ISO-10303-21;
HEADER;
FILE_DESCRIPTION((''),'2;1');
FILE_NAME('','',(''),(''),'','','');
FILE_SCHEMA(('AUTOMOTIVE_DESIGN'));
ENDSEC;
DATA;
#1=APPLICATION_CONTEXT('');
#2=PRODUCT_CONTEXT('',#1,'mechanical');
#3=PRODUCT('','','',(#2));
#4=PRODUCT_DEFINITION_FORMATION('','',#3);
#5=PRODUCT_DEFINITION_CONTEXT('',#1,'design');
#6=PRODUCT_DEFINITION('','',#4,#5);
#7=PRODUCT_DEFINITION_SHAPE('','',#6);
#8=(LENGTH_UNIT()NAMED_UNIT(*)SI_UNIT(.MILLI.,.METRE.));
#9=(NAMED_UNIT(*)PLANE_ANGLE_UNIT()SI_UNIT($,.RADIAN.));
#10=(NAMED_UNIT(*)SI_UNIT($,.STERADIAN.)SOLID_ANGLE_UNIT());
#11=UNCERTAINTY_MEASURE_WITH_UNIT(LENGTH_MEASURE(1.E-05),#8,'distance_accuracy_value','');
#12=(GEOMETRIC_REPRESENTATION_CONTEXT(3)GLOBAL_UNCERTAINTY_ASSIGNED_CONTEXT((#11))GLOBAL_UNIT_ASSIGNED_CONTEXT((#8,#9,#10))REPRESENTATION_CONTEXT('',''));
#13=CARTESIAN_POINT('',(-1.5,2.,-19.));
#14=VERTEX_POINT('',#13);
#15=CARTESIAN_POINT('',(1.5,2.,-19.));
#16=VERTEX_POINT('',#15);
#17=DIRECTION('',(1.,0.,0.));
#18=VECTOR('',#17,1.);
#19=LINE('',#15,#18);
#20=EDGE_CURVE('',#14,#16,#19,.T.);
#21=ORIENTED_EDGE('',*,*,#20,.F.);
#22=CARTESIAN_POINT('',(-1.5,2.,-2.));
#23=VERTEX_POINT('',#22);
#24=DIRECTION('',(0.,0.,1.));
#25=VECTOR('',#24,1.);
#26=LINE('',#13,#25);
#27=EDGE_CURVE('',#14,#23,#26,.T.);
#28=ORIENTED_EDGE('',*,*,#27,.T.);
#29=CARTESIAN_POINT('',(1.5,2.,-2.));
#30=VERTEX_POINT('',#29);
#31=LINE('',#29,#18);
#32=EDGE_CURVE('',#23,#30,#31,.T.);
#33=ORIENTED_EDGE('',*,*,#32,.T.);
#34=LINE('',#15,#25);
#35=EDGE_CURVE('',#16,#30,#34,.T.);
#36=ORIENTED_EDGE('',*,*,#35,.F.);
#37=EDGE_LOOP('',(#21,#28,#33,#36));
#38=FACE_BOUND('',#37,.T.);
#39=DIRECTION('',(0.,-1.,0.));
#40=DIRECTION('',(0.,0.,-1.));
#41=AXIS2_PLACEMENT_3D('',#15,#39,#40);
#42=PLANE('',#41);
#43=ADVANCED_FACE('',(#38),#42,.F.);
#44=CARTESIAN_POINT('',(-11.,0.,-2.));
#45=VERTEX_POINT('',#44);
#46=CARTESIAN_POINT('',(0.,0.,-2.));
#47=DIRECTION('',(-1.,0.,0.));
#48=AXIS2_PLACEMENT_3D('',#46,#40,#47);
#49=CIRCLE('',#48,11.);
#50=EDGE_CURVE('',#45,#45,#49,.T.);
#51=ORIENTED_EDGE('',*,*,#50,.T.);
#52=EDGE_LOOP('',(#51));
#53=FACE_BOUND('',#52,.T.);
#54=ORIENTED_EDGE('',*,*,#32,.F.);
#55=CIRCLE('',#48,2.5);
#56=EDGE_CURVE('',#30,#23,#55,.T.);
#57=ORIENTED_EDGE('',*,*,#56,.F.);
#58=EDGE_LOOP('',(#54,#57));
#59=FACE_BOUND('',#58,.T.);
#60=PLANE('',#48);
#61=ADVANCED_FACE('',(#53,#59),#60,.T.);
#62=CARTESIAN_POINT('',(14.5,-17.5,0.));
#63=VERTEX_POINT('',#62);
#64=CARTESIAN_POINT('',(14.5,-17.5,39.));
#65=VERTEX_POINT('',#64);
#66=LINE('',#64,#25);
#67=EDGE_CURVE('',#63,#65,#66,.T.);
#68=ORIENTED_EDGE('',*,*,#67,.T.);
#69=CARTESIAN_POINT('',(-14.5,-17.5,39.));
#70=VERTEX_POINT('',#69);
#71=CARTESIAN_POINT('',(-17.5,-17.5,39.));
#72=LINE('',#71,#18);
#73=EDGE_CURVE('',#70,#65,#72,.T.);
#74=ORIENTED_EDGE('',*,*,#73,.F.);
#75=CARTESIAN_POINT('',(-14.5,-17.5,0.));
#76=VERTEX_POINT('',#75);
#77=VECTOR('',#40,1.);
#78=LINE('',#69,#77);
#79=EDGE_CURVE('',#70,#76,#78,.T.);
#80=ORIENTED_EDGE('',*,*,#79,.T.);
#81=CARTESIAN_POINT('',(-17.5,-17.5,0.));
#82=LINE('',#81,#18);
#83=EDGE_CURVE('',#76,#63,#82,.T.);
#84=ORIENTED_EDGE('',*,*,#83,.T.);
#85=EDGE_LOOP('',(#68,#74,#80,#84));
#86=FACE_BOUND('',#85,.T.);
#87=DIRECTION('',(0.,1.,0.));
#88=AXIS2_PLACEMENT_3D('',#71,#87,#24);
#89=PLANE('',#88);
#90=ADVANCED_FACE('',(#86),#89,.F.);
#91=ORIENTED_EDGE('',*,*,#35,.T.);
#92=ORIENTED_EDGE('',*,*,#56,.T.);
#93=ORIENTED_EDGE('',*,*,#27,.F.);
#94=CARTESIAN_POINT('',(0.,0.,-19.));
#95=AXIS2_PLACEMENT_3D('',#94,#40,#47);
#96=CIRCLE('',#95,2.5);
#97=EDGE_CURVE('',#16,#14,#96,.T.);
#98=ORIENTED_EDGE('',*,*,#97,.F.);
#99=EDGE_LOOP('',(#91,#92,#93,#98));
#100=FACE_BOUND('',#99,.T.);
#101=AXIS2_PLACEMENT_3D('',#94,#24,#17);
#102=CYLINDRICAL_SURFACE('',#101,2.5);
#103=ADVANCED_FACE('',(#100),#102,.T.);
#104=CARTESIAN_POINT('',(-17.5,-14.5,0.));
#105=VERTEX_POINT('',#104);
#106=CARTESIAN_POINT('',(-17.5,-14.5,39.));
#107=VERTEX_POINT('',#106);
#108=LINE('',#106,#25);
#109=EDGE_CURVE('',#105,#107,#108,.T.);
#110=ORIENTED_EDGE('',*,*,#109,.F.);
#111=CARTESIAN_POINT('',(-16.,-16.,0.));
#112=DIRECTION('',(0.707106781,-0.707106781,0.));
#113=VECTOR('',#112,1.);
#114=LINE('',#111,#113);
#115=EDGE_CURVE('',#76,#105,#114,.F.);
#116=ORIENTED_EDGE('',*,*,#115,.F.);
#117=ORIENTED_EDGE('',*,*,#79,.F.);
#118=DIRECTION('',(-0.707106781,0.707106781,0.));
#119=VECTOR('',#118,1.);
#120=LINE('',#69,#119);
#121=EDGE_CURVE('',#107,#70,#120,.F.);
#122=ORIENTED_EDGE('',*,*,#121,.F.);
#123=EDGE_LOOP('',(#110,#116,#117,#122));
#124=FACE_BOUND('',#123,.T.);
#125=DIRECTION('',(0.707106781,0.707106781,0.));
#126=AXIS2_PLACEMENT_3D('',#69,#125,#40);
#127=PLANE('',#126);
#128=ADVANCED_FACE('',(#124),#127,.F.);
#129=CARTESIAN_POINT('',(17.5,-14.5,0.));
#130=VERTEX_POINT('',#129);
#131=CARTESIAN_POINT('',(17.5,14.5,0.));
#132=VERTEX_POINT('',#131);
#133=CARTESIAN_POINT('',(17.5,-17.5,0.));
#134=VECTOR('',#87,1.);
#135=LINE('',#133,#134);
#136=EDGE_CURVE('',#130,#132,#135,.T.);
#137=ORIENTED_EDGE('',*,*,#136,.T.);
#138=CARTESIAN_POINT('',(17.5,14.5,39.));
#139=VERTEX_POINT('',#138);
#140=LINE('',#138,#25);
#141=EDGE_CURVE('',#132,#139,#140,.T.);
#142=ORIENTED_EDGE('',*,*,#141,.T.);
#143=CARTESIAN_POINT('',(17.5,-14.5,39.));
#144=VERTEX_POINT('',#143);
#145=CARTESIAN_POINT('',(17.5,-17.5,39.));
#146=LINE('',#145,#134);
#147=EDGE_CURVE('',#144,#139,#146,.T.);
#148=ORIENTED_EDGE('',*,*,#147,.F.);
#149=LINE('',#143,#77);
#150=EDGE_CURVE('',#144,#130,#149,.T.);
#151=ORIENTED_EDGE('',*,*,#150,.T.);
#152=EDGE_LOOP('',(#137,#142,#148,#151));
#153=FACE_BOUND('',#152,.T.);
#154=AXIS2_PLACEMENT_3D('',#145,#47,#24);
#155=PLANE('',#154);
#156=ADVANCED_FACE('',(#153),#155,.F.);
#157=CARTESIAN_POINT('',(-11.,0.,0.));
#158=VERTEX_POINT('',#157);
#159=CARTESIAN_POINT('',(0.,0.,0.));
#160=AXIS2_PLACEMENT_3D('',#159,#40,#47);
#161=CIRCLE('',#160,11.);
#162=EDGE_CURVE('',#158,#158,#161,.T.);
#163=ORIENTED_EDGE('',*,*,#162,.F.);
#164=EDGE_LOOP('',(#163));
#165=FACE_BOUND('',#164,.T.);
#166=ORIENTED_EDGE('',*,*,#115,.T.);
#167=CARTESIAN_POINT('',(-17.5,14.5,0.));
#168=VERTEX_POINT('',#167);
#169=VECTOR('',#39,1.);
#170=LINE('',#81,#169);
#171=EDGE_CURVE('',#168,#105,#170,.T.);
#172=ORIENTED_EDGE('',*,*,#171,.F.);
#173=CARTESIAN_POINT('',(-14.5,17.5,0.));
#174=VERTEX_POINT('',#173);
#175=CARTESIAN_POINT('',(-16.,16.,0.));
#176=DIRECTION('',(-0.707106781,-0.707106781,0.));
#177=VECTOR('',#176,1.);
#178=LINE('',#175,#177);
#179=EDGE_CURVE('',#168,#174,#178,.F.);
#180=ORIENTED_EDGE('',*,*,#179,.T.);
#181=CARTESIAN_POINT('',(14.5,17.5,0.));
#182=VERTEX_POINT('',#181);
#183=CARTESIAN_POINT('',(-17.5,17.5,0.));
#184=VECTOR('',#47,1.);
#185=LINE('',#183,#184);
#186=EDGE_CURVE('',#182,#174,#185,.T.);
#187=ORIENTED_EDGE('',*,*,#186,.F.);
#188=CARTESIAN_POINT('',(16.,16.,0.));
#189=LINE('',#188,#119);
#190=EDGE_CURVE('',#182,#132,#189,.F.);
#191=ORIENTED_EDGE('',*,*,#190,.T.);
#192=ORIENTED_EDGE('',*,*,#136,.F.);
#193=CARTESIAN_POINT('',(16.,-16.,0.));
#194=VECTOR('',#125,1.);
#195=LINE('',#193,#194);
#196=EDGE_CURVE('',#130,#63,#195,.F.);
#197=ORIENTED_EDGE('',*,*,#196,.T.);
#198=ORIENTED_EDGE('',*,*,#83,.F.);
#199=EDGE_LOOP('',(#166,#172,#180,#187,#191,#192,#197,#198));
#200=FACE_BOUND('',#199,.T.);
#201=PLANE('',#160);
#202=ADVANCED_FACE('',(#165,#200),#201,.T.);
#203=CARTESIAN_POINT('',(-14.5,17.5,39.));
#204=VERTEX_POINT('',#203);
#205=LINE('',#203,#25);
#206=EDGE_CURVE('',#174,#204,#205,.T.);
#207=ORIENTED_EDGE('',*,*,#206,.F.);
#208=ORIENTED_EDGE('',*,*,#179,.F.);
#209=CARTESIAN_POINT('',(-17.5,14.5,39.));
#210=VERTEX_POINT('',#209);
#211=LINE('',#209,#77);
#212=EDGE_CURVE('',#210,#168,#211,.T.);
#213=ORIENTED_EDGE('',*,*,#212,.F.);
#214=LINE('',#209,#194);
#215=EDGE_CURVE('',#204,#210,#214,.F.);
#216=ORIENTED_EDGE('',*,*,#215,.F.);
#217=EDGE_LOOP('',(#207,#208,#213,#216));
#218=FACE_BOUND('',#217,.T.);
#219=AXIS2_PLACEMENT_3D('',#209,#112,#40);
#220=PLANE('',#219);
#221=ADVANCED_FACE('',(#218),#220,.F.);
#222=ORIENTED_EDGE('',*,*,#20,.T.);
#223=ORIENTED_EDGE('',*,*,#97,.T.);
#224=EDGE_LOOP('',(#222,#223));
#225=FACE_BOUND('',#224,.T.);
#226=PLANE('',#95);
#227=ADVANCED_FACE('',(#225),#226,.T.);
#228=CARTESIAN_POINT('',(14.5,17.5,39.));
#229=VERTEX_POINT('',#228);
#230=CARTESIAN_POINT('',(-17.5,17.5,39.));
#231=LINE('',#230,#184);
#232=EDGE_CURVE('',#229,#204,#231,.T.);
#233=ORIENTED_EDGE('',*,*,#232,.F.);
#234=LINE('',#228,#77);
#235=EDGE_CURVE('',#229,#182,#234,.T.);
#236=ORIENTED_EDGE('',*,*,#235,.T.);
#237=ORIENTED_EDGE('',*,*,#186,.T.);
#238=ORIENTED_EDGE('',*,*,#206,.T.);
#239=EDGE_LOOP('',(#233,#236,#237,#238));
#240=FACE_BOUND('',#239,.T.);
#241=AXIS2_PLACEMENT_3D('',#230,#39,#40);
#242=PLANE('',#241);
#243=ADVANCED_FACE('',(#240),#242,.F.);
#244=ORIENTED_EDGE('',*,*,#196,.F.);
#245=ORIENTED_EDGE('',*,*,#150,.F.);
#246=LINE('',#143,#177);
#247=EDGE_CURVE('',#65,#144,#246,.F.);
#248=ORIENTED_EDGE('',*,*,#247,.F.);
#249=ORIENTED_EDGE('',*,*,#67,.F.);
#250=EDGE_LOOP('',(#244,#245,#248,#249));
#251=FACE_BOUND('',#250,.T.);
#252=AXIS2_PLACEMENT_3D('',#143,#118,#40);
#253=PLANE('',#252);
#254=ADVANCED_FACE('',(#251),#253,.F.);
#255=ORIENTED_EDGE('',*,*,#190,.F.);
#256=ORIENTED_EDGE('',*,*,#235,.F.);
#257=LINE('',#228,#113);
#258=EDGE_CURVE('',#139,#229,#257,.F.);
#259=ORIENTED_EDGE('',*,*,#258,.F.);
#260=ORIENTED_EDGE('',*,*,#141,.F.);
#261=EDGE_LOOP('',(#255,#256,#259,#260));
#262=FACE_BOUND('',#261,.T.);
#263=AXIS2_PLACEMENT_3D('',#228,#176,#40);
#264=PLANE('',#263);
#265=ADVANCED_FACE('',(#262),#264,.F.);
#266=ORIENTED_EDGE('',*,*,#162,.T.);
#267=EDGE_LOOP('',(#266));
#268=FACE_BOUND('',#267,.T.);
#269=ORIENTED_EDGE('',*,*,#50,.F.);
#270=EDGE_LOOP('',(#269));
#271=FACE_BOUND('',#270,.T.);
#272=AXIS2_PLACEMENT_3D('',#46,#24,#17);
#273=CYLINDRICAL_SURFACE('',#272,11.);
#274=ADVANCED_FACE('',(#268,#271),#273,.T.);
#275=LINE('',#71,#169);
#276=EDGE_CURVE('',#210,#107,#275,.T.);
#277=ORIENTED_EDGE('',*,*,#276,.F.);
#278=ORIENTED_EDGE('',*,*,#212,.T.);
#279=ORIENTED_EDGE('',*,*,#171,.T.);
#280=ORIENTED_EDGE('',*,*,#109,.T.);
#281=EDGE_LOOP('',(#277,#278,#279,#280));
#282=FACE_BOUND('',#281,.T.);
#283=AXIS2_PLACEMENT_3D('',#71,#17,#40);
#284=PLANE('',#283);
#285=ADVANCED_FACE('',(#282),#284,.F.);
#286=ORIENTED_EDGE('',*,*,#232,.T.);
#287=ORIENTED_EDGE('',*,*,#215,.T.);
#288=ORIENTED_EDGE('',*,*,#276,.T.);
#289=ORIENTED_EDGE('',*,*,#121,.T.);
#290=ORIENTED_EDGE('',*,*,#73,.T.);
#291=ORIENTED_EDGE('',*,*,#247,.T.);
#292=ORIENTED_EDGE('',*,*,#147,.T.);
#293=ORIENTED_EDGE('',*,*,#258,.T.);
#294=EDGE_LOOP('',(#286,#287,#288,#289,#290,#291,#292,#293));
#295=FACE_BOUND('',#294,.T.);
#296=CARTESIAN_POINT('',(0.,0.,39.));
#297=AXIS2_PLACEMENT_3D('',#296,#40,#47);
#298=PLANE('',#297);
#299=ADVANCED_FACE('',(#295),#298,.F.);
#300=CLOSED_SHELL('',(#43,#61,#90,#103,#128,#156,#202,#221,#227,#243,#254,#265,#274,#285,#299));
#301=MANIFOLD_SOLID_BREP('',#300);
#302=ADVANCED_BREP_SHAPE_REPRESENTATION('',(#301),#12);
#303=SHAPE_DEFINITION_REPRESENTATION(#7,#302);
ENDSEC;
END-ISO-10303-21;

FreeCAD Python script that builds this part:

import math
import FreeCAD as App
import Part
import Sketcher


def edges_at(feature, points):
    """Names of the edges that pass closest to the given points."""
    edges = feature.Shape.Edges
    near = lambda p: min(range(len(edges)), key=lambda i: edges[i].distToShape(Part.Vertex(*p))[0])
    return sorted({f"Edge{near(p) + 1}" for p in points})

doc = App.newDocument("Part")
body = doc.addObject("PartDesign::Body", "Body")

# Sketch on XY plane
sketch1 = doc.addObject("Sketcher::SketchObject", "Sketch")
body.addObject(sketch1)
sketch1.AttachmentSupport = (doc.XY_Plane, [""])
sketch1.MapMode = "FlatFace"
sketch1.addGeometry(Part.LineSegment(App.Vector(-17.5, 17.5, 0), App.Vector(-17.5, -17.5, 0)), False)
sketch1.addGeometry(Part.LineSegment(App.Vector(-17.5, -17.5, 0), App.Vector(17.5, -17.5, 0)), False)
sketch1.addGeometry(Part.LineSegment(App.Vector(17.5, -17.5, 0), App.Vector(17.5, 17.5, 0)), False)
sketch1.addGeometry(Part.LineSegment(App.Vector(17.5, 17.5, 0), App.Vector(-17.5, 17.5, 0)), False)
sketch1.addConstraint(Sketcher.Constraint("Coincident", 0, 2, 1, 1))
sketch1.addConstraint(Sketcher.Constraint("Coincident", 1, 2, 2, 1))
sketch1.addConstraint(Sketcher.Constraint("Coincident", 2, 2, 3, 1))
sketch1.addConstraint(Sketcher.Constraint("Coincident", 3, 2, 0, 1))
sketch1.addConstraint(Sketcher.Constraint("Vertical", 0))
sketch1.addConstraint(Sketcher.Constraint("Horizontal", 1))
sketch1.addConstraint(Sketcher.Constraint("Vertical", 2))
sketch1.addConstraint(Sketcher.Constraint("Horizontal", 3))
sketch1.addConstraint(Sketcher.Constraint("Symmetric", 0, 2, 2, 2, -1, 1))
sketch1.addConstraint(Sketcher.Constraint("Equal", 3, 0))
sketch1.addConstraint(Sketcher.Constraint("DistanceX", 1, 1, 1, 2, 35.0))
pad1 = doc.addObject("PartDesign::Pad", "Pad")
body.addObject(pad1)
pad1.Profile = sketch1
pad1.Length = 39

# Sketch on XY plane
sketch2 = doc.addObject("Sketcher::SketchObject", "Sketch001")
body.addObject(sketch2)
sketch2.AttachmentSupport = (doc.XY_Plane, [""])
sketch2.MapMode = "FlatFace"
sketch2.addGeometry(Part.Circle(App.Vector(0, 0, 0), App.Vector(0, 0, 1), 11), False)
sketch2.addConstraint(Sketcher.Constraint("Coincident", 0, 3, -1, 1))
sketch2.addConstraint(Sketcher.Constraint("Diameter", 0, 22.0))
pad2 = doc.addObject("PartDesign::Pad", "Pad001")
body.addObject(pad2)
pad2.Profile = sketch2
pad2.Length = 2
pad2.Reversed = True

# Sketch on XY plane
sketch3 = doc.addObject("Sketcher::SketchObject", "Sketch002")
body.addObject(sketch3)
sketch3.AttachmentSupport = (doc.XY_Plane, [""])
sketch3.MapMode = "FlatFace"
sketch3.AttachmentOffset = App.Placement(App.Vector(0, 0, -2), App.Rotation())
sketch3.addGeometry(Part.LineSegment(App.Vector(-1.5, 2, 0), App.Vector(1.5, 2, 0)), False)
sketch3.addGeometry(Part.ArcOfCircle(Part.Circle(App.Vector(0, 0, 0), App.Vector(0, 0, 1), 2.5), math.radians(126.869898), math.radians(413.130102)), False)
sketch3.addConstraint(Sketcher.Constraint("Coincident", 0, 1, 1, 1))
sketch3.addConstraint(Sketcher.Constraint("Coincident", 1, 2, 0, 2))
sketch3.addConstraint(Sketcher.Constraint("Horizontal", 0))
sketch3.addConstraint(Sketcher.Constraint("Coincident", 1, 3, -1, 1))
sketch3.addConstraint(Sketcher.Constraint("Radius", 1, 2.5))
sketch3.addConstraint(Sketcher.Constraint("DistanceX", 0, 1, 0, 2, 3.0))
pad3 = doc.addObject("PartDesign::Pad", "Pad002")
body.addObject(pad3)
pad3.Profile = sketch3
pad3.Length = 17
pad3.Reversed = True
doc.recompute()

chamfer = doc.addObject("PartDesign::Chamfer", "Chamfer")
body.addObject(chamfer)
chamfer.Base = (pad3, edges_at(pad3, [
    (17.5, -17.5, 19.5),
    (-17.5, -17.5, 19.5),
    (-17.5, 17.5, 19.5),
    (17.5, 17.5, 19.5),
]))
chamfer.Size = 3

doc.recompute()
